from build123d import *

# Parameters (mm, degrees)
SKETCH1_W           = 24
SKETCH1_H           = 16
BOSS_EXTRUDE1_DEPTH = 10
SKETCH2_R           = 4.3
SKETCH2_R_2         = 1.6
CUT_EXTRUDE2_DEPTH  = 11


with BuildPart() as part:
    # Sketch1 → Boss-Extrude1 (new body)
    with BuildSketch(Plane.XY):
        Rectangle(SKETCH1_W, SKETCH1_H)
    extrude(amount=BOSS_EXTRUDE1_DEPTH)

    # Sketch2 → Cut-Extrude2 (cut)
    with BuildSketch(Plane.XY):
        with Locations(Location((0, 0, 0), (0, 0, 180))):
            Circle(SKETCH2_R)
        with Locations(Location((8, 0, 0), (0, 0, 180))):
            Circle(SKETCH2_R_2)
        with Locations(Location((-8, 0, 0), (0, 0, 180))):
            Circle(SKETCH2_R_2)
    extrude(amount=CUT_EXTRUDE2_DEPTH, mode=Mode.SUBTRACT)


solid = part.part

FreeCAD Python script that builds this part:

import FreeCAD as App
import Part
import Sketcher
from FreeCAD import Vector

doc = App.newDocument("Part")
body = doc.addObject("PartDesign::Body", "Body")

sketch1 = doc.addObject("Sketcher::SketchObject", "Sketch")
body.addObject(sketch1)
sketch1.AttachmentSupport = (doc.XY_Plane, [""])
sketch1.MapMode = "FlatFace"
sketch1.addGeometry(Part.LineSegment(Vector(-12, 8, 0), Vector(-12, -8, 0)), False)
sketch1.addGeometry(Part.LineSegment(Vector(-12, -8, 0), Vector(12, -8, 0)), False)
sketch1.addGeometry(Part.LineSegment(Vector(12, -8, 0), Vector(12, 8, 0)), False)
sketch1.addGeometry(Part.LineSegment(Vector(12, 8, 0), Vector(-12, 8, 0)), False)
sketch1.addConstraint(Sketcher.Constraint("Coincident", 0, 2, 1, 1))
sketch1.addConstraint(Sketcher.Constraint("Coincident", 1, 2, 2, 1))
sketch1.addConstraint(Sketcher.Constraint("Coincident", 2, 2, 3, 1))
sketch1.addConstraint(Sketcher.Constraint("Coincident", 3, 2, 0, 1))
sketch1.addConstraint(Sketcher.Constraint("Vertical", 0))
sketch1.addConstraint(Sketcher.Constraint("Horizontal", 1))
sketch1.addConstraint(Sketcher.Constraint("Vertical", 2))
sketch1.addConstraint(Sketcher.Constraint("Horizontal", 3))
sketch1.addConstraint(Sketcher.Constraint("Symmetric", 0, 2, 2, 2, -1, 1))
sketch1.addConstraint(Sketcher.Constraint("DistanceX", 1, 1, 1, 2, 24.0))
sketch1.addConstraint(Sketcher.Constraint("DistanceY", 0, 2, 0, 1, 16.0))
pad1 = doc.addObject("PartDesign::Pad", "Pad")
body.addObject(pad1)
pad1.Profile = sketch1
pad1.Length = 10

sketch2 = doc.addObject("Sketcher::SketchObject", "Sketch001")
body.addObject(sketch2)
sketch2.AttachmentSupport = (doc.XY_Plane, [""])
sketch2.MapMode = "FlatFace"
sketch2.addGeometry(Part.Circle(Vector(0, 0, 0), Vector(0, 0, 1), 4.3), False)
sketch2.addGeometry(Part.Circle(Vector(8, 0, 0), Vector(0, 0, 1), 1.6), False)
sketch2.addGeometry(Part.Circle(Vector(-8, 0, 0), Vector(0, 0, 1), 1.6), False)
sketch2.addConstraint(Sketcher.Constraint("Coincident", 0, 3, -1, 1))
sketch2.addConstraint(Sketcher.Constraint("Equal", 1, 2))
sketch2.addConstraint(Sketcher.Constraint("Symmetric", 1, 3, 2, 3, -1, 1))
sketch2.addConstraint(Sketcher.Constraint("PointOnObject", 1, 3, -1))
sketch2.addConstraint(Sketcher.Constraint("Diameter", 0, 8.6))
sketch2.addConstraint(Sketcher.Constraint("Diameter", 1, 3.2))
sketch2.addConstraint(Sketcher.Constraint("DistanceX", -1, 1, 1, 3, 8.0))
pocket1 = doc.addObject("PartDesign::Pocket", "Pocket")
body.addObject(pocket1)
pocket1.Profile = sketch2
pocket1.Length = 11
pocket1.Reversed = True

doc.recompute()
